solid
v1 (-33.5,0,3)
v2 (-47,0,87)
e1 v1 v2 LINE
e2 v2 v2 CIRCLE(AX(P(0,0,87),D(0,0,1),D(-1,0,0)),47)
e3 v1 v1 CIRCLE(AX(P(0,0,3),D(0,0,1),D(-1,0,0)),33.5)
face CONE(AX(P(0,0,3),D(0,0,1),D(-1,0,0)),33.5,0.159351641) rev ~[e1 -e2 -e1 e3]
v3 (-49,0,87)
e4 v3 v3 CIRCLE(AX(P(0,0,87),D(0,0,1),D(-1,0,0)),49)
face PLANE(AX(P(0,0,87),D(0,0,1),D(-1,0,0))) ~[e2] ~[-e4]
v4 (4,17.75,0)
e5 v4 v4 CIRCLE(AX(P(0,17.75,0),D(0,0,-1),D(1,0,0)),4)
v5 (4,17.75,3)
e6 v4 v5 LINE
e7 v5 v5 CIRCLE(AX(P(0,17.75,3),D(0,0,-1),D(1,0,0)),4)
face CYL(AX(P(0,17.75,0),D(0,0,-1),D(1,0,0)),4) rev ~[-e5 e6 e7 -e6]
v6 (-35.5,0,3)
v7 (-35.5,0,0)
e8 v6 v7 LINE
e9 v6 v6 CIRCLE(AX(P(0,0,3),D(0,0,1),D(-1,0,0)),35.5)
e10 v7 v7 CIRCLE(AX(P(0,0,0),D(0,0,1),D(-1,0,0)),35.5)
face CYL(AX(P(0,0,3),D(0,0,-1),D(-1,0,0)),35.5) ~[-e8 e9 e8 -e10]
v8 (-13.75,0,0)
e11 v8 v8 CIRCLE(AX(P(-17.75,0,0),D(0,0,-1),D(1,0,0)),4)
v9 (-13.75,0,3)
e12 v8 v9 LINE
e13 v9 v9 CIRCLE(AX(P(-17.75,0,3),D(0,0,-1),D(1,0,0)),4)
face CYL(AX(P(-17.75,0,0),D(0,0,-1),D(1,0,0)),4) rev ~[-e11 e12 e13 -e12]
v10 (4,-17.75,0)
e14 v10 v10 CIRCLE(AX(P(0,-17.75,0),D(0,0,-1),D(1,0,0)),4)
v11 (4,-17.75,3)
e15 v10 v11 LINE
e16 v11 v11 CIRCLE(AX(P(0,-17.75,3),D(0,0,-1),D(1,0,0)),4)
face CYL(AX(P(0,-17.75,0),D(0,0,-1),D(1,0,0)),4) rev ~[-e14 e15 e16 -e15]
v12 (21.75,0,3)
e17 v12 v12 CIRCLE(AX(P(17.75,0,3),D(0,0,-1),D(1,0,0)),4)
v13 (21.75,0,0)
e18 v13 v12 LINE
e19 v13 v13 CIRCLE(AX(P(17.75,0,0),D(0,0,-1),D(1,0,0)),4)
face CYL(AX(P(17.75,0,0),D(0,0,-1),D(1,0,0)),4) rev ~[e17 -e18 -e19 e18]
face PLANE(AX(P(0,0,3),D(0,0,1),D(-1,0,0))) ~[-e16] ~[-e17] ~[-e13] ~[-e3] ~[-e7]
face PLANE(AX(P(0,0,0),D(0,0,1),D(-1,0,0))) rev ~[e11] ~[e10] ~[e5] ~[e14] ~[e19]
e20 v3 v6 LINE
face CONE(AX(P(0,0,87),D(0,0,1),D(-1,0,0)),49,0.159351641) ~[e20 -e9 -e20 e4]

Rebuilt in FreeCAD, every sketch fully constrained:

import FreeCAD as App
import Part
import Sketcher

V = App.Vector
Q = App.Units.Quantity

doc = App.newDocument("Part")
body = doc.addObject("PartDesign::Body", "Body")

# Sketch on XZ plane
sketch1 = body.newObject("Sketcher::SketchObject", "Sketch")
sketch1.AttachmentSupport = (doc.getObject("XZ_Plane"), [""])
sketch1.MapMode = "FlatFace"
sketch1.addGeometry(Part.LineSegment(V(-49, 87, 0), V(-35.5, 3, 0)), False)
sketch1.addGeometry(Part.LineSegment(V(-35.5, 3, 0), V(-35.5, 0, 0)), False)
sketch1.addGeometry(Part.LineSegment(V(-35.5, 0, 0), V(0, 0, 0)), False)
sketch1.addGeometry(Part.LineSegment(V(0, 0, 0), V(0, 3, 0)), False)
sketch1.addGeometry(Part.LineSegment(V(0, 3, 0), V(-33.5, 3, 0)), False)
sketch1.addGeometry(Part.LineSegment(V(-33.5, 3, 0), V(-47, 87, 0)), False)
sketch1.addGeometry(Part.LineSegment(V(-47, 87, 0), V(-49, 87, 0)), False)
sketch1.addConstraint(Sketcher.Constraint("Coincident", 0, 2, 1, 1))
sketch1.addConstraint(Sketcher.Constraint("Coincident", 1, 2, 2, 1))
sketch1.addConstraint(Sketcher.Constraint("Coincident", 2, 2, 3, 1))
sketch1.addConstraint(Sketcher.Constraint("Coincident", 3, 2, 4, 1))
sketch1.addConstraint(Sketcher.Constraint("Coincident", 4, 2, 5, 1))
sketch1.addConstraint(Sketcher.Constraint("Coincident", 5, 2, 6, 1))
sketch1.addConstraint(Sketcher.Constraint("Coincident", 6, 2, 0, 1))
sketch1.addConstraint(Sketcher.Constraint("Vertical", 1))
sketch1.addConstraint(Sketcher.Constraint("Horizontal", 2))
sketch1.addConstraint(Sketcher.Constraint("Vertical", 3))
sketch1.addConstraint(Sketcher.Constraint("Horizontal", 4))
sketch1.addConstraint(Sketcher.Constraint("Horizontal", 6))
sketch1.addConstraint(Sketcher.Constraint("Coincident", 2, 2, -1, 1))
sketch1.addConstraint(Sketcher.Constraint("Parallel", 0, 5))
sketch1.addConstraint(Sketcher.Constraint("Horizontal", 0, 2, 3, 2))
sketch1.addConstraint(Sketcher.Constraint("DistanceX", 6, 2, 6, 1, Q("2 mm")))
sketch1.addConstraint(Sketcher.Constraint("DistanceY", 1, 2, 1, 1, Q("3 mm")))
sketch1.addConstraint(Sketcher.Constraint("DistanceX", 2, 1, 2, 2, Q("35.5 mm")))
sketch1.addConstraint(Sketcher.Constraint("DistanceX", 5, 2, -1, 1, Q("47 mm")))
sketch1.addConstraint(Sketcher.Constraint("DistanceY", -1, 1, 5, 2, Q("87 mm")))
revolution = body.newObject("PartDesign::Revolution", "Revolution")
revolution.Profile = sketch1
revolution.ReferenceAxis = (sketch1, ["V_Axis"])
revolution.Angle = 360

# Sketch on XY plane
sketch2 = body.newObject("Sketcher::SketchObject", "Sketch001")
sketch2.AttachmentSupport = (doc.getObject("XY_Plane"), [""])
sketch2.MapMode = "FlatFace"
sketch2.addGeometry(Part.Circle(V(0, -17.8, 0), V(0, 0, 1), 4), False)
sketch2.addGeometry(Part.Circle(V(17.8, 0, 0), V(0, 0, 1), 4), False)
sketch2.addGeometry(Part.Circle(V(-17.8, 0, 0), V(0, 0, 1), 4), False)
sketch2.addGeometry(Part.Circle(V(0, 17.8, 0), V(0, 0, 1), 4), False)
sketch2.addConstraint(Sketcher.Constraint("Equal", 0, 1))
sketch2.addConstraint(Sketcher.Constraint("Equal", 1, 2))
sketch2.addConstraint(Sketcher.Constraint("Equal", 2, 3))
sketch2.addConstraint(Sketcher.Constraint("Symmetric", 1, 3, 2, 3, -1, 1))
sketch2.addConstraint(Sketcher.Constraint("Symmetric", 0, 3, 3, 3, -1, 1))
sketch2.addConstraint(Sketcher.Constraint("PointOnObject", 0, 3, -2))
sketch2.addConstraint(Sketcher.Constraint("PointOnObject", 1, 3, -1))
sketch2.addConstraint(Sketcher.Constraint("Diameter", 0, Q("8 mm")))
sketch2.addConstraint(Sketcher.Constraint("DistanceX", 2, 3, 1, 3, Q("35.5 mm")))
sketch2.addConstraint(Sketcher.Constraint("DistanceY", 0, 3, 3, 3, Q("35.5 mm")))
pocket1 = body.newObject("PartDesign::Pocket", "Pocket")
pocket1.Profile = sketch2
pocket1.Type = "ThroughAll"
pocket1.Reversed = True

doc.recompute()
